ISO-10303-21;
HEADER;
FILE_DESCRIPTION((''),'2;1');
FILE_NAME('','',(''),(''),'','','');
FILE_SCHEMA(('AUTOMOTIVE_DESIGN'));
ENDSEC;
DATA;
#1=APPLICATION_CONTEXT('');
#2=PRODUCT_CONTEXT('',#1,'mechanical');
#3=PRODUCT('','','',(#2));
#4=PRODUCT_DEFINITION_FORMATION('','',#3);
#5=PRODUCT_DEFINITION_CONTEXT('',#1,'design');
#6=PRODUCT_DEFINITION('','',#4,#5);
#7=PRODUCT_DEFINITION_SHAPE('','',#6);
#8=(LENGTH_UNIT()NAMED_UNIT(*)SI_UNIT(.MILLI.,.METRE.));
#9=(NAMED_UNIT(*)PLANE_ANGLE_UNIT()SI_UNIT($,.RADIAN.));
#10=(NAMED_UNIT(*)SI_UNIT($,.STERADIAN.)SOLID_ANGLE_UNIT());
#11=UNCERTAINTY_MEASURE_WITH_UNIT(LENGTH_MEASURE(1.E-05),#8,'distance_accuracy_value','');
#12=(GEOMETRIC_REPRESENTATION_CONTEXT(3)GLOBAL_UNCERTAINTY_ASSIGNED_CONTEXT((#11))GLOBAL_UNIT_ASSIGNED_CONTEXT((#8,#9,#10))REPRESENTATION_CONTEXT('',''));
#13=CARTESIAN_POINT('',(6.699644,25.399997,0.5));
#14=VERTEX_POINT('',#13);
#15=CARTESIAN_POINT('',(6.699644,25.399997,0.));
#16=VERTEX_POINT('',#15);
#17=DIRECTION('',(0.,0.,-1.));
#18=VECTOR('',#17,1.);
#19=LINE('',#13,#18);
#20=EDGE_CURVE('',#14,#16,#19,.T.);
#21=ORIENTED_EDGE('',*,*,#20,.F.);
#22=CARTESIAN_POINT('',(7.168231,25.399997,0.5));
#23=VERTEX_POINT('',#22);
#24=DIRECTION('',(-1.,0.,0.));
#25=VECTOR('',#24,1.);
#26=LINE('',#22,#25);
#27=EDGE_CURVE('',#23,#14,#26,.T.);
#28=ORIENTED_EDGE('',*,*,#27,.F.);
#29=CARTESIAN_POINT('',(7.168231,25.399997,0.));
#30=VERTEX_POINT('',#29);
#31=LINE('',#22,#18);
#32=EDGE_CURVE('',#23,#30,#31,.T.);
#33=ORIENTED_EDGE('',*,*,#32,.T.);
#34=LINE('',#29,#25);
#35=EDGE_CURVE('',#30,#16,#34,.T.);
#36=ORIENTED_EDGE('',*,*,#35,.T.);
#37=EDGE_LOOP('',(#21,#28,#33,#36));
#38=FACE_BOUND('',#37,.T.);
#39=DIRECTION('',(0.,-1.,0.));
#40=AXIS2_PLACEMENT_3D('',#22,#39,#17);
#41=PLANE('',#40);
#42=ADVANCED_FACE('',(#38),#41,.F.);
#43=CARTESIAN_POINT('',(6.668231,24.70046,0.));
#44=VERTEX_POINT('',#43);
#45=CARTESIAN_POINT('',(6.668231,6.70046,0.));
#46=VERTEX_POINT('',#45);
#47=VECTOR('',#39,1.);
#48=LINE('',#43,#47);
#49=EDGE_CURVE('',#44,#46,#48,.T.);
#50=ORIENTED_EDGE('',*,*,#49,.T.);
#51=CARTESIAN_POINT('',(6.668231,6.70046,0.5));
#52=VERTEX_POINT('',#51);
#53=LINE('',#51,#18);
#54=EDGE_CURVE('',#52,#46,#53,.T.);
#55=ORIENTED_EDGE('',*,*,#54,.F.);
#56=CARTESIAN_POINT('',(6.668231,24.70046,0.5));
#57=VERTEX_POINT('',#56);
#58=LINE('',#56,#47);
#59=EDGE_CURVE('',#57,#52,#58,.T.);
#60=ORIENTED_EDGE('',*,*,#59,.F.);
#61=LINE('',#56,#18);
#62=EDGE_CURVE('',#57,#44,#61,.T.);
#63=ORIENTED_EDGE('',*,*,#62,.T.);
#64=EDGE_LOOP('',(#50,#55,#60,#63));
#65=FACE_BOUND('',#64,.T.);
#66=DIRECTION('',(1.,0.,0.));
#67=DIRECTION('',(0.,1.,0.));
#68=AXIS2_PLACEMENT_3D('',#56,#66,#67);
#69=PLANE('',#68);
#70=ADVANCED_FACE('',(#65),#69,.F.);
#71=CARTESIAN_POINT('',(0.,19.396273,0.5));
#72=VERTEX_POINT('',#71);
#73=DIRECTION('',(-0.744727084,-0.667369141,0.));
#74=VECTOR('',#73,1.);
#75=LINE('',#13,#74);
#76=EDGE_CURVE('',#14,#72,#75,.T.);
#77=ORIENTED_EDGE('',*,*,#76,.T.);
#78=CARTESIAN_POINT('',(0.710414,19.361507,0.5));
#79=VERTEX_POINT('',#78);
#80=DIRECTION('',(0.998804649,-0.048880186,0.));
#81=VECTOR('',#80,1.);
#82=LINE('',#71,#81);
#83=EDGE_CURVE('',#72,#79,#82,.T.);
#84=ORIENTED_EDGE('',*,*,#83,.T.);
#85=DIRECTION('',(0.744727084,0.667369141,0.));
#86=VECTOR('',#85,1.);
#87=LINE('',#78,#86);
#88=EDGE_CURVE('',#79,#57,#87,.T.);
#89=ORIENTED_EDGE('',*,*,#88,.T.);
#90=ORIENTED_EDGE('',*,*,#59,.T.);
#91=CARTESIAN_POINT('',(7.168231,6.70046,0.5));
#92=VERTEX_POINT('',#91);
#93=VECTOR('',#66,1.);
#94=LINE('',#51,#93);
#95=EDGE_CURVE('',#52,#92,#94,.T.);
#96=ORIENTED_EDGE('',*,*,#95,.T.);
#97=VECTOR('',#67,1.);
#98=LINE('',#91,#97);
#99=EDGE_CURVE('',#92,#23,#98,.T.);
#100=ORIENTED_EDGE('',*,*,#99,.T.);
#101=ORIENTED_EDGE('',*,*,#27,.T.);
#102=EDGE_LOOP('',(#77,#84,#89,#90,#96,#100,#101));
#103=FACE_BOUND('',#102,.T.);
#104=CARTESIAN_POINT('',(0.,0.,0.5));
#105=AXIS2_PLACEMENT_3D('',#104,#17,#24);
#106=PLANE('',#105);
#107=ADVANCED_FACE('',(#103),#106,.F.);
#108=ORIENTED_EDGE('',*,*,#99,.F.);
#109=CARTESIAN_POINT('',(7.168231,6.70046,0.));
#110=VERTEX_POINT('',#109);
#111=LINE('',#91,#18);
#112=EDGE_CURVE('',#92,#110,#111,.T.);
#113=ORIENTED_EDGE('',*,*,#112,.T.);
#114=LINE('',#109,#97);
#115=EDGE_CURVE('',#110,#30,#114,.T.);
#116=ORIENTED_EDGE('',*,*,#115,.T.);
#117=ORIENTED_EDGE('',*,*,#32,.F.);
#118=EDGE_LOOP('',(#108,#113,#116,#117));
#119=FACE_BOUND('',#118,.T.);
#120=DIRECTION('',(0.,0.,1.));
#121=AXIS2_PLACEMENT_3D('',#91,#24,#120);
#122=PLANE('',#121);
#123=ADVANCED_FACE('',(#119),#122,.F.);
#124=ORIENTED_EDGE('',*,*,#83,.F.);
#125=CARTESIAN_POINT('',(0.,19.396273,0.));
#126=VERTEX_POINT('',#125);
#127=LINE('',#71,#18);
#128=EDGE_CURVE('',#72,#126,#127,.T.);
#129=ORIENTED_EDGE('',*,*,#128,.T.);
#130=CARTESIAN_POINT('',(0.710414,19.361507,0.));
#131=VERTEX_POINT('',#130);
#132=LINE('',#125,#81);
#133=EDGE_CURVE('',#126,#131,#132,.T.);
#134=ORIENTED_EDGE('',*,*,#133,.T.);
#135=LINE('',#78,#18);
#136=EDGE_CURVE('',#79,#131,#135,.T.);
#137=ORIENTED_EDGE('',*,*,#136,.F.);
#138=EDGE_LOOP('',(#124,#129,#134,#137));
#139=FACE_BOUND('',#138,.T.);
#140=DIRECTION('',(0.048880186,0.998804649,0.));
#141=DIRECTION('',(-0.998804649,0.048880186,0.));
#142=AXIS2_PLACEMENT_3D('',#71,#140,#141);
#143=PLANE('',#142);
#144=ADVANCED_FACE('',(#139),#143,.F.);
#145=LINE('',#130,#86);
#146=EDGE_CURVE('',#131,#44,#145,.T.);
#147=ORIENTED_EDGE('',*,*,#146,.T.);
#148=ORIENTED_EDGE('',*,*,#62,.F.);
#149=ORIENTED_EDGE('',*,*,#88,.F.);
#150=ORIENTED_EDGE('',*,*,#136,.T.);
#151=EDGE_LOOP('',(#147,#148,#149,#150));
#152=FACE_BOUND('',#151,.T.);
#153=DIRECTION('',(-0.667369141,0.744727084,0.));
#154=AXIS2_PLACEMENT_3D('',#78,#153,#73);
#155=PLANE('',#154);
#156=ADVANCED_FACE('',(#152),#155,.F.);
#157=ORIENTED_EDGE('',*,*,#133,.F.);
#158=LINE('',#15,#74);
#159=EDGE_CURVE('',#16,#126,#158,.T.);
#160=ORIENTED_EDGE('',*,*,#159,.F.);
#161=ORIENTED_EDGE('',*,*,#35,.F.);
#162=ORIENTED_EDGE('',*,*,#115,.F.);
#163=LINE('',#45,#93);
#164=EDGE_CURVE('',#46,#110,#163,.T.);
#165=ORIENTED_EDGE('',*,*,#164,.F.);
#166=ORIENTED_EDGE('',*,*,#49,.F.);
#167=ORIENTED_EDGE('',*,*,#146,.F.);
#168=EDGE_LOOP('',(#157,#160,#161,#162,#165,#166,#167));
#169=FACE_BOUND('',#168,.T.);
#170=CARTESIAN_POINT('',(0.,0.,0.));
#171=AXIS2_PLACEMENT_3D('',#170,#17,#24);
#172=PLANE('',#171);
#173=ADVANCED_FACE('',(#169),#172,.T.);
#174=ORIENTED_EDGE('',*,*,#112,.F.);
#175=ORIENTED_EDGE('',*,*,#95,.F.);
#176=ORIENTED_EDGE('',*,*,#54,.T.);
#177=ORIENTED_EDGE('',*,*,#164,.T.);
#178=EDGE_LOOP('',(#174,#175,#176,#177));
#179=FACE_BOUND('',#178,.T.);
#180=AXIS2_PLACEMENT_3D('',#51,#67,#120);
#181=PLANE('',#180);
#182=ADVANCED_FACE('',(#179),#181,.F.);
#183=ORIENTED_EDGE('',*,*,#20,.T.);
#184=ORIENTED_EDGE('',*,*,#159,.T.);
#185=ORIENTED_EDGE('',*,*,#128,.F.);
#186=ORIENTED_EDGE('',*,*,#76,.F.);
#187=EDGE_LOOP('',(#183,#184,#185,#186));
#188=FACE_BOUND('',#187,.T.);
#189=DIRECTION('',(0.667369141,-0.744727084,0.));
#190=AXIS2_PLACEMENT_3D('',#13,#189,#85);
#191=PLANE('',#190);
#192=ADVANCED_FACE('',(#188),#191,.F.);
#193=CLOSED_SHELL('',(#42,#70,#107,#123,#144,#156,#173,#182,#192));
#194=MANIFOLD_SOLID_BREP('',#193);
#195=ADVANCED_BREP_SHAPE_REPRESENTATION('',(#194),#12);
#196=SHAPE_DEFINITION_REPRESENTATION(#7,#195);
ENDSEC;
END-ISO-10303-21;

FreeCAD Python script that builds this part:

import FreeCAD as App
import Part
import Sketcher
from FreeCAD import Vector
Q = App.Units.Quantity


def add_polygon(sketch, points):
    """Adds a closed chain of lines whose ends are joined by coincident constraints."""
    first, n = sketch.GeometryCount, len(points)
    for a, b in zip(points, points[1:] + points[:1]):
        sketch.addGeometry(Part.LineSegment(App.Vector(*a, 0), App.Vector(*b, 0)), False)
    for i in range(n):
        sketch.addConstraint(Sketcher.Constraint("Coincident", first + i, 2, first + (i + 1) % n, 1))

doc = App.newDocument("Part")
body = doc.addObject("PartDesign::Body", "Body")

# Sketch on XY plane
sketch1 = body.newObject("Sketcher::SketchObject", "Sketch")
sketch1.AttachmentSupport = (doc.getObject("XY_Plane"), [""])
sketch1.MapMode = "FlatFace"
add_polygon(sketch1, [(0.71, 19.36), (6.67, 24.7), (6.67, 6.7), (7.17, 6.7), (7.17, 25.4), (6.7, 25.4), (0, 19.4)])  # lines 0-6
sketch1.addConstraint([
    Sketcher.Constraint("Vertical", 1),
    Sketcher.Constraint("Horizontal", 2),
    Sketcher.Constraint("Vertical", 3),
    Sketcher.Constraint("Horizontal", 4),
    Sketcher.Constraint("PointOnObject", 5, 2, -2),
    Sketcher.Constraint("Parallel", 0, 5),
    Sketcher.Constraint("DistanceY", 1, 2, 1, 1, Q("18 mm")),
    Sketcher.Constraint("Distance", 0, Q("8 mm")),
    Sketcher.Constraint("DistanceX", 2, 1, 2, 2, Q("0.5 mm")),
    Sketcher.Constraint("DistanceX", 4, 2, 4, 1, Q("0.468587 mm")),
    Sketcher.Constraint("DistanceY", 3, 1, 3, 2, Q("18.699537 mm")),
    Sketcher.Constraint("DistanceX", -1, 1, 0, 2, Q("6.668231 mm")),
    Sketcher.Constraint("DistanceY", -1, 1, 0, 2, Q("24.70046 mm")),
    Sketcher.Constraint("DistanceX", 6, 2, 4, 2, Q("5.98923 mm")),
])
pad1 = body.newObject("PartDesign::Pad", "Pad")
pad1.Profile = sketch1
pad1.Length = 0.5

doc.recompute()
